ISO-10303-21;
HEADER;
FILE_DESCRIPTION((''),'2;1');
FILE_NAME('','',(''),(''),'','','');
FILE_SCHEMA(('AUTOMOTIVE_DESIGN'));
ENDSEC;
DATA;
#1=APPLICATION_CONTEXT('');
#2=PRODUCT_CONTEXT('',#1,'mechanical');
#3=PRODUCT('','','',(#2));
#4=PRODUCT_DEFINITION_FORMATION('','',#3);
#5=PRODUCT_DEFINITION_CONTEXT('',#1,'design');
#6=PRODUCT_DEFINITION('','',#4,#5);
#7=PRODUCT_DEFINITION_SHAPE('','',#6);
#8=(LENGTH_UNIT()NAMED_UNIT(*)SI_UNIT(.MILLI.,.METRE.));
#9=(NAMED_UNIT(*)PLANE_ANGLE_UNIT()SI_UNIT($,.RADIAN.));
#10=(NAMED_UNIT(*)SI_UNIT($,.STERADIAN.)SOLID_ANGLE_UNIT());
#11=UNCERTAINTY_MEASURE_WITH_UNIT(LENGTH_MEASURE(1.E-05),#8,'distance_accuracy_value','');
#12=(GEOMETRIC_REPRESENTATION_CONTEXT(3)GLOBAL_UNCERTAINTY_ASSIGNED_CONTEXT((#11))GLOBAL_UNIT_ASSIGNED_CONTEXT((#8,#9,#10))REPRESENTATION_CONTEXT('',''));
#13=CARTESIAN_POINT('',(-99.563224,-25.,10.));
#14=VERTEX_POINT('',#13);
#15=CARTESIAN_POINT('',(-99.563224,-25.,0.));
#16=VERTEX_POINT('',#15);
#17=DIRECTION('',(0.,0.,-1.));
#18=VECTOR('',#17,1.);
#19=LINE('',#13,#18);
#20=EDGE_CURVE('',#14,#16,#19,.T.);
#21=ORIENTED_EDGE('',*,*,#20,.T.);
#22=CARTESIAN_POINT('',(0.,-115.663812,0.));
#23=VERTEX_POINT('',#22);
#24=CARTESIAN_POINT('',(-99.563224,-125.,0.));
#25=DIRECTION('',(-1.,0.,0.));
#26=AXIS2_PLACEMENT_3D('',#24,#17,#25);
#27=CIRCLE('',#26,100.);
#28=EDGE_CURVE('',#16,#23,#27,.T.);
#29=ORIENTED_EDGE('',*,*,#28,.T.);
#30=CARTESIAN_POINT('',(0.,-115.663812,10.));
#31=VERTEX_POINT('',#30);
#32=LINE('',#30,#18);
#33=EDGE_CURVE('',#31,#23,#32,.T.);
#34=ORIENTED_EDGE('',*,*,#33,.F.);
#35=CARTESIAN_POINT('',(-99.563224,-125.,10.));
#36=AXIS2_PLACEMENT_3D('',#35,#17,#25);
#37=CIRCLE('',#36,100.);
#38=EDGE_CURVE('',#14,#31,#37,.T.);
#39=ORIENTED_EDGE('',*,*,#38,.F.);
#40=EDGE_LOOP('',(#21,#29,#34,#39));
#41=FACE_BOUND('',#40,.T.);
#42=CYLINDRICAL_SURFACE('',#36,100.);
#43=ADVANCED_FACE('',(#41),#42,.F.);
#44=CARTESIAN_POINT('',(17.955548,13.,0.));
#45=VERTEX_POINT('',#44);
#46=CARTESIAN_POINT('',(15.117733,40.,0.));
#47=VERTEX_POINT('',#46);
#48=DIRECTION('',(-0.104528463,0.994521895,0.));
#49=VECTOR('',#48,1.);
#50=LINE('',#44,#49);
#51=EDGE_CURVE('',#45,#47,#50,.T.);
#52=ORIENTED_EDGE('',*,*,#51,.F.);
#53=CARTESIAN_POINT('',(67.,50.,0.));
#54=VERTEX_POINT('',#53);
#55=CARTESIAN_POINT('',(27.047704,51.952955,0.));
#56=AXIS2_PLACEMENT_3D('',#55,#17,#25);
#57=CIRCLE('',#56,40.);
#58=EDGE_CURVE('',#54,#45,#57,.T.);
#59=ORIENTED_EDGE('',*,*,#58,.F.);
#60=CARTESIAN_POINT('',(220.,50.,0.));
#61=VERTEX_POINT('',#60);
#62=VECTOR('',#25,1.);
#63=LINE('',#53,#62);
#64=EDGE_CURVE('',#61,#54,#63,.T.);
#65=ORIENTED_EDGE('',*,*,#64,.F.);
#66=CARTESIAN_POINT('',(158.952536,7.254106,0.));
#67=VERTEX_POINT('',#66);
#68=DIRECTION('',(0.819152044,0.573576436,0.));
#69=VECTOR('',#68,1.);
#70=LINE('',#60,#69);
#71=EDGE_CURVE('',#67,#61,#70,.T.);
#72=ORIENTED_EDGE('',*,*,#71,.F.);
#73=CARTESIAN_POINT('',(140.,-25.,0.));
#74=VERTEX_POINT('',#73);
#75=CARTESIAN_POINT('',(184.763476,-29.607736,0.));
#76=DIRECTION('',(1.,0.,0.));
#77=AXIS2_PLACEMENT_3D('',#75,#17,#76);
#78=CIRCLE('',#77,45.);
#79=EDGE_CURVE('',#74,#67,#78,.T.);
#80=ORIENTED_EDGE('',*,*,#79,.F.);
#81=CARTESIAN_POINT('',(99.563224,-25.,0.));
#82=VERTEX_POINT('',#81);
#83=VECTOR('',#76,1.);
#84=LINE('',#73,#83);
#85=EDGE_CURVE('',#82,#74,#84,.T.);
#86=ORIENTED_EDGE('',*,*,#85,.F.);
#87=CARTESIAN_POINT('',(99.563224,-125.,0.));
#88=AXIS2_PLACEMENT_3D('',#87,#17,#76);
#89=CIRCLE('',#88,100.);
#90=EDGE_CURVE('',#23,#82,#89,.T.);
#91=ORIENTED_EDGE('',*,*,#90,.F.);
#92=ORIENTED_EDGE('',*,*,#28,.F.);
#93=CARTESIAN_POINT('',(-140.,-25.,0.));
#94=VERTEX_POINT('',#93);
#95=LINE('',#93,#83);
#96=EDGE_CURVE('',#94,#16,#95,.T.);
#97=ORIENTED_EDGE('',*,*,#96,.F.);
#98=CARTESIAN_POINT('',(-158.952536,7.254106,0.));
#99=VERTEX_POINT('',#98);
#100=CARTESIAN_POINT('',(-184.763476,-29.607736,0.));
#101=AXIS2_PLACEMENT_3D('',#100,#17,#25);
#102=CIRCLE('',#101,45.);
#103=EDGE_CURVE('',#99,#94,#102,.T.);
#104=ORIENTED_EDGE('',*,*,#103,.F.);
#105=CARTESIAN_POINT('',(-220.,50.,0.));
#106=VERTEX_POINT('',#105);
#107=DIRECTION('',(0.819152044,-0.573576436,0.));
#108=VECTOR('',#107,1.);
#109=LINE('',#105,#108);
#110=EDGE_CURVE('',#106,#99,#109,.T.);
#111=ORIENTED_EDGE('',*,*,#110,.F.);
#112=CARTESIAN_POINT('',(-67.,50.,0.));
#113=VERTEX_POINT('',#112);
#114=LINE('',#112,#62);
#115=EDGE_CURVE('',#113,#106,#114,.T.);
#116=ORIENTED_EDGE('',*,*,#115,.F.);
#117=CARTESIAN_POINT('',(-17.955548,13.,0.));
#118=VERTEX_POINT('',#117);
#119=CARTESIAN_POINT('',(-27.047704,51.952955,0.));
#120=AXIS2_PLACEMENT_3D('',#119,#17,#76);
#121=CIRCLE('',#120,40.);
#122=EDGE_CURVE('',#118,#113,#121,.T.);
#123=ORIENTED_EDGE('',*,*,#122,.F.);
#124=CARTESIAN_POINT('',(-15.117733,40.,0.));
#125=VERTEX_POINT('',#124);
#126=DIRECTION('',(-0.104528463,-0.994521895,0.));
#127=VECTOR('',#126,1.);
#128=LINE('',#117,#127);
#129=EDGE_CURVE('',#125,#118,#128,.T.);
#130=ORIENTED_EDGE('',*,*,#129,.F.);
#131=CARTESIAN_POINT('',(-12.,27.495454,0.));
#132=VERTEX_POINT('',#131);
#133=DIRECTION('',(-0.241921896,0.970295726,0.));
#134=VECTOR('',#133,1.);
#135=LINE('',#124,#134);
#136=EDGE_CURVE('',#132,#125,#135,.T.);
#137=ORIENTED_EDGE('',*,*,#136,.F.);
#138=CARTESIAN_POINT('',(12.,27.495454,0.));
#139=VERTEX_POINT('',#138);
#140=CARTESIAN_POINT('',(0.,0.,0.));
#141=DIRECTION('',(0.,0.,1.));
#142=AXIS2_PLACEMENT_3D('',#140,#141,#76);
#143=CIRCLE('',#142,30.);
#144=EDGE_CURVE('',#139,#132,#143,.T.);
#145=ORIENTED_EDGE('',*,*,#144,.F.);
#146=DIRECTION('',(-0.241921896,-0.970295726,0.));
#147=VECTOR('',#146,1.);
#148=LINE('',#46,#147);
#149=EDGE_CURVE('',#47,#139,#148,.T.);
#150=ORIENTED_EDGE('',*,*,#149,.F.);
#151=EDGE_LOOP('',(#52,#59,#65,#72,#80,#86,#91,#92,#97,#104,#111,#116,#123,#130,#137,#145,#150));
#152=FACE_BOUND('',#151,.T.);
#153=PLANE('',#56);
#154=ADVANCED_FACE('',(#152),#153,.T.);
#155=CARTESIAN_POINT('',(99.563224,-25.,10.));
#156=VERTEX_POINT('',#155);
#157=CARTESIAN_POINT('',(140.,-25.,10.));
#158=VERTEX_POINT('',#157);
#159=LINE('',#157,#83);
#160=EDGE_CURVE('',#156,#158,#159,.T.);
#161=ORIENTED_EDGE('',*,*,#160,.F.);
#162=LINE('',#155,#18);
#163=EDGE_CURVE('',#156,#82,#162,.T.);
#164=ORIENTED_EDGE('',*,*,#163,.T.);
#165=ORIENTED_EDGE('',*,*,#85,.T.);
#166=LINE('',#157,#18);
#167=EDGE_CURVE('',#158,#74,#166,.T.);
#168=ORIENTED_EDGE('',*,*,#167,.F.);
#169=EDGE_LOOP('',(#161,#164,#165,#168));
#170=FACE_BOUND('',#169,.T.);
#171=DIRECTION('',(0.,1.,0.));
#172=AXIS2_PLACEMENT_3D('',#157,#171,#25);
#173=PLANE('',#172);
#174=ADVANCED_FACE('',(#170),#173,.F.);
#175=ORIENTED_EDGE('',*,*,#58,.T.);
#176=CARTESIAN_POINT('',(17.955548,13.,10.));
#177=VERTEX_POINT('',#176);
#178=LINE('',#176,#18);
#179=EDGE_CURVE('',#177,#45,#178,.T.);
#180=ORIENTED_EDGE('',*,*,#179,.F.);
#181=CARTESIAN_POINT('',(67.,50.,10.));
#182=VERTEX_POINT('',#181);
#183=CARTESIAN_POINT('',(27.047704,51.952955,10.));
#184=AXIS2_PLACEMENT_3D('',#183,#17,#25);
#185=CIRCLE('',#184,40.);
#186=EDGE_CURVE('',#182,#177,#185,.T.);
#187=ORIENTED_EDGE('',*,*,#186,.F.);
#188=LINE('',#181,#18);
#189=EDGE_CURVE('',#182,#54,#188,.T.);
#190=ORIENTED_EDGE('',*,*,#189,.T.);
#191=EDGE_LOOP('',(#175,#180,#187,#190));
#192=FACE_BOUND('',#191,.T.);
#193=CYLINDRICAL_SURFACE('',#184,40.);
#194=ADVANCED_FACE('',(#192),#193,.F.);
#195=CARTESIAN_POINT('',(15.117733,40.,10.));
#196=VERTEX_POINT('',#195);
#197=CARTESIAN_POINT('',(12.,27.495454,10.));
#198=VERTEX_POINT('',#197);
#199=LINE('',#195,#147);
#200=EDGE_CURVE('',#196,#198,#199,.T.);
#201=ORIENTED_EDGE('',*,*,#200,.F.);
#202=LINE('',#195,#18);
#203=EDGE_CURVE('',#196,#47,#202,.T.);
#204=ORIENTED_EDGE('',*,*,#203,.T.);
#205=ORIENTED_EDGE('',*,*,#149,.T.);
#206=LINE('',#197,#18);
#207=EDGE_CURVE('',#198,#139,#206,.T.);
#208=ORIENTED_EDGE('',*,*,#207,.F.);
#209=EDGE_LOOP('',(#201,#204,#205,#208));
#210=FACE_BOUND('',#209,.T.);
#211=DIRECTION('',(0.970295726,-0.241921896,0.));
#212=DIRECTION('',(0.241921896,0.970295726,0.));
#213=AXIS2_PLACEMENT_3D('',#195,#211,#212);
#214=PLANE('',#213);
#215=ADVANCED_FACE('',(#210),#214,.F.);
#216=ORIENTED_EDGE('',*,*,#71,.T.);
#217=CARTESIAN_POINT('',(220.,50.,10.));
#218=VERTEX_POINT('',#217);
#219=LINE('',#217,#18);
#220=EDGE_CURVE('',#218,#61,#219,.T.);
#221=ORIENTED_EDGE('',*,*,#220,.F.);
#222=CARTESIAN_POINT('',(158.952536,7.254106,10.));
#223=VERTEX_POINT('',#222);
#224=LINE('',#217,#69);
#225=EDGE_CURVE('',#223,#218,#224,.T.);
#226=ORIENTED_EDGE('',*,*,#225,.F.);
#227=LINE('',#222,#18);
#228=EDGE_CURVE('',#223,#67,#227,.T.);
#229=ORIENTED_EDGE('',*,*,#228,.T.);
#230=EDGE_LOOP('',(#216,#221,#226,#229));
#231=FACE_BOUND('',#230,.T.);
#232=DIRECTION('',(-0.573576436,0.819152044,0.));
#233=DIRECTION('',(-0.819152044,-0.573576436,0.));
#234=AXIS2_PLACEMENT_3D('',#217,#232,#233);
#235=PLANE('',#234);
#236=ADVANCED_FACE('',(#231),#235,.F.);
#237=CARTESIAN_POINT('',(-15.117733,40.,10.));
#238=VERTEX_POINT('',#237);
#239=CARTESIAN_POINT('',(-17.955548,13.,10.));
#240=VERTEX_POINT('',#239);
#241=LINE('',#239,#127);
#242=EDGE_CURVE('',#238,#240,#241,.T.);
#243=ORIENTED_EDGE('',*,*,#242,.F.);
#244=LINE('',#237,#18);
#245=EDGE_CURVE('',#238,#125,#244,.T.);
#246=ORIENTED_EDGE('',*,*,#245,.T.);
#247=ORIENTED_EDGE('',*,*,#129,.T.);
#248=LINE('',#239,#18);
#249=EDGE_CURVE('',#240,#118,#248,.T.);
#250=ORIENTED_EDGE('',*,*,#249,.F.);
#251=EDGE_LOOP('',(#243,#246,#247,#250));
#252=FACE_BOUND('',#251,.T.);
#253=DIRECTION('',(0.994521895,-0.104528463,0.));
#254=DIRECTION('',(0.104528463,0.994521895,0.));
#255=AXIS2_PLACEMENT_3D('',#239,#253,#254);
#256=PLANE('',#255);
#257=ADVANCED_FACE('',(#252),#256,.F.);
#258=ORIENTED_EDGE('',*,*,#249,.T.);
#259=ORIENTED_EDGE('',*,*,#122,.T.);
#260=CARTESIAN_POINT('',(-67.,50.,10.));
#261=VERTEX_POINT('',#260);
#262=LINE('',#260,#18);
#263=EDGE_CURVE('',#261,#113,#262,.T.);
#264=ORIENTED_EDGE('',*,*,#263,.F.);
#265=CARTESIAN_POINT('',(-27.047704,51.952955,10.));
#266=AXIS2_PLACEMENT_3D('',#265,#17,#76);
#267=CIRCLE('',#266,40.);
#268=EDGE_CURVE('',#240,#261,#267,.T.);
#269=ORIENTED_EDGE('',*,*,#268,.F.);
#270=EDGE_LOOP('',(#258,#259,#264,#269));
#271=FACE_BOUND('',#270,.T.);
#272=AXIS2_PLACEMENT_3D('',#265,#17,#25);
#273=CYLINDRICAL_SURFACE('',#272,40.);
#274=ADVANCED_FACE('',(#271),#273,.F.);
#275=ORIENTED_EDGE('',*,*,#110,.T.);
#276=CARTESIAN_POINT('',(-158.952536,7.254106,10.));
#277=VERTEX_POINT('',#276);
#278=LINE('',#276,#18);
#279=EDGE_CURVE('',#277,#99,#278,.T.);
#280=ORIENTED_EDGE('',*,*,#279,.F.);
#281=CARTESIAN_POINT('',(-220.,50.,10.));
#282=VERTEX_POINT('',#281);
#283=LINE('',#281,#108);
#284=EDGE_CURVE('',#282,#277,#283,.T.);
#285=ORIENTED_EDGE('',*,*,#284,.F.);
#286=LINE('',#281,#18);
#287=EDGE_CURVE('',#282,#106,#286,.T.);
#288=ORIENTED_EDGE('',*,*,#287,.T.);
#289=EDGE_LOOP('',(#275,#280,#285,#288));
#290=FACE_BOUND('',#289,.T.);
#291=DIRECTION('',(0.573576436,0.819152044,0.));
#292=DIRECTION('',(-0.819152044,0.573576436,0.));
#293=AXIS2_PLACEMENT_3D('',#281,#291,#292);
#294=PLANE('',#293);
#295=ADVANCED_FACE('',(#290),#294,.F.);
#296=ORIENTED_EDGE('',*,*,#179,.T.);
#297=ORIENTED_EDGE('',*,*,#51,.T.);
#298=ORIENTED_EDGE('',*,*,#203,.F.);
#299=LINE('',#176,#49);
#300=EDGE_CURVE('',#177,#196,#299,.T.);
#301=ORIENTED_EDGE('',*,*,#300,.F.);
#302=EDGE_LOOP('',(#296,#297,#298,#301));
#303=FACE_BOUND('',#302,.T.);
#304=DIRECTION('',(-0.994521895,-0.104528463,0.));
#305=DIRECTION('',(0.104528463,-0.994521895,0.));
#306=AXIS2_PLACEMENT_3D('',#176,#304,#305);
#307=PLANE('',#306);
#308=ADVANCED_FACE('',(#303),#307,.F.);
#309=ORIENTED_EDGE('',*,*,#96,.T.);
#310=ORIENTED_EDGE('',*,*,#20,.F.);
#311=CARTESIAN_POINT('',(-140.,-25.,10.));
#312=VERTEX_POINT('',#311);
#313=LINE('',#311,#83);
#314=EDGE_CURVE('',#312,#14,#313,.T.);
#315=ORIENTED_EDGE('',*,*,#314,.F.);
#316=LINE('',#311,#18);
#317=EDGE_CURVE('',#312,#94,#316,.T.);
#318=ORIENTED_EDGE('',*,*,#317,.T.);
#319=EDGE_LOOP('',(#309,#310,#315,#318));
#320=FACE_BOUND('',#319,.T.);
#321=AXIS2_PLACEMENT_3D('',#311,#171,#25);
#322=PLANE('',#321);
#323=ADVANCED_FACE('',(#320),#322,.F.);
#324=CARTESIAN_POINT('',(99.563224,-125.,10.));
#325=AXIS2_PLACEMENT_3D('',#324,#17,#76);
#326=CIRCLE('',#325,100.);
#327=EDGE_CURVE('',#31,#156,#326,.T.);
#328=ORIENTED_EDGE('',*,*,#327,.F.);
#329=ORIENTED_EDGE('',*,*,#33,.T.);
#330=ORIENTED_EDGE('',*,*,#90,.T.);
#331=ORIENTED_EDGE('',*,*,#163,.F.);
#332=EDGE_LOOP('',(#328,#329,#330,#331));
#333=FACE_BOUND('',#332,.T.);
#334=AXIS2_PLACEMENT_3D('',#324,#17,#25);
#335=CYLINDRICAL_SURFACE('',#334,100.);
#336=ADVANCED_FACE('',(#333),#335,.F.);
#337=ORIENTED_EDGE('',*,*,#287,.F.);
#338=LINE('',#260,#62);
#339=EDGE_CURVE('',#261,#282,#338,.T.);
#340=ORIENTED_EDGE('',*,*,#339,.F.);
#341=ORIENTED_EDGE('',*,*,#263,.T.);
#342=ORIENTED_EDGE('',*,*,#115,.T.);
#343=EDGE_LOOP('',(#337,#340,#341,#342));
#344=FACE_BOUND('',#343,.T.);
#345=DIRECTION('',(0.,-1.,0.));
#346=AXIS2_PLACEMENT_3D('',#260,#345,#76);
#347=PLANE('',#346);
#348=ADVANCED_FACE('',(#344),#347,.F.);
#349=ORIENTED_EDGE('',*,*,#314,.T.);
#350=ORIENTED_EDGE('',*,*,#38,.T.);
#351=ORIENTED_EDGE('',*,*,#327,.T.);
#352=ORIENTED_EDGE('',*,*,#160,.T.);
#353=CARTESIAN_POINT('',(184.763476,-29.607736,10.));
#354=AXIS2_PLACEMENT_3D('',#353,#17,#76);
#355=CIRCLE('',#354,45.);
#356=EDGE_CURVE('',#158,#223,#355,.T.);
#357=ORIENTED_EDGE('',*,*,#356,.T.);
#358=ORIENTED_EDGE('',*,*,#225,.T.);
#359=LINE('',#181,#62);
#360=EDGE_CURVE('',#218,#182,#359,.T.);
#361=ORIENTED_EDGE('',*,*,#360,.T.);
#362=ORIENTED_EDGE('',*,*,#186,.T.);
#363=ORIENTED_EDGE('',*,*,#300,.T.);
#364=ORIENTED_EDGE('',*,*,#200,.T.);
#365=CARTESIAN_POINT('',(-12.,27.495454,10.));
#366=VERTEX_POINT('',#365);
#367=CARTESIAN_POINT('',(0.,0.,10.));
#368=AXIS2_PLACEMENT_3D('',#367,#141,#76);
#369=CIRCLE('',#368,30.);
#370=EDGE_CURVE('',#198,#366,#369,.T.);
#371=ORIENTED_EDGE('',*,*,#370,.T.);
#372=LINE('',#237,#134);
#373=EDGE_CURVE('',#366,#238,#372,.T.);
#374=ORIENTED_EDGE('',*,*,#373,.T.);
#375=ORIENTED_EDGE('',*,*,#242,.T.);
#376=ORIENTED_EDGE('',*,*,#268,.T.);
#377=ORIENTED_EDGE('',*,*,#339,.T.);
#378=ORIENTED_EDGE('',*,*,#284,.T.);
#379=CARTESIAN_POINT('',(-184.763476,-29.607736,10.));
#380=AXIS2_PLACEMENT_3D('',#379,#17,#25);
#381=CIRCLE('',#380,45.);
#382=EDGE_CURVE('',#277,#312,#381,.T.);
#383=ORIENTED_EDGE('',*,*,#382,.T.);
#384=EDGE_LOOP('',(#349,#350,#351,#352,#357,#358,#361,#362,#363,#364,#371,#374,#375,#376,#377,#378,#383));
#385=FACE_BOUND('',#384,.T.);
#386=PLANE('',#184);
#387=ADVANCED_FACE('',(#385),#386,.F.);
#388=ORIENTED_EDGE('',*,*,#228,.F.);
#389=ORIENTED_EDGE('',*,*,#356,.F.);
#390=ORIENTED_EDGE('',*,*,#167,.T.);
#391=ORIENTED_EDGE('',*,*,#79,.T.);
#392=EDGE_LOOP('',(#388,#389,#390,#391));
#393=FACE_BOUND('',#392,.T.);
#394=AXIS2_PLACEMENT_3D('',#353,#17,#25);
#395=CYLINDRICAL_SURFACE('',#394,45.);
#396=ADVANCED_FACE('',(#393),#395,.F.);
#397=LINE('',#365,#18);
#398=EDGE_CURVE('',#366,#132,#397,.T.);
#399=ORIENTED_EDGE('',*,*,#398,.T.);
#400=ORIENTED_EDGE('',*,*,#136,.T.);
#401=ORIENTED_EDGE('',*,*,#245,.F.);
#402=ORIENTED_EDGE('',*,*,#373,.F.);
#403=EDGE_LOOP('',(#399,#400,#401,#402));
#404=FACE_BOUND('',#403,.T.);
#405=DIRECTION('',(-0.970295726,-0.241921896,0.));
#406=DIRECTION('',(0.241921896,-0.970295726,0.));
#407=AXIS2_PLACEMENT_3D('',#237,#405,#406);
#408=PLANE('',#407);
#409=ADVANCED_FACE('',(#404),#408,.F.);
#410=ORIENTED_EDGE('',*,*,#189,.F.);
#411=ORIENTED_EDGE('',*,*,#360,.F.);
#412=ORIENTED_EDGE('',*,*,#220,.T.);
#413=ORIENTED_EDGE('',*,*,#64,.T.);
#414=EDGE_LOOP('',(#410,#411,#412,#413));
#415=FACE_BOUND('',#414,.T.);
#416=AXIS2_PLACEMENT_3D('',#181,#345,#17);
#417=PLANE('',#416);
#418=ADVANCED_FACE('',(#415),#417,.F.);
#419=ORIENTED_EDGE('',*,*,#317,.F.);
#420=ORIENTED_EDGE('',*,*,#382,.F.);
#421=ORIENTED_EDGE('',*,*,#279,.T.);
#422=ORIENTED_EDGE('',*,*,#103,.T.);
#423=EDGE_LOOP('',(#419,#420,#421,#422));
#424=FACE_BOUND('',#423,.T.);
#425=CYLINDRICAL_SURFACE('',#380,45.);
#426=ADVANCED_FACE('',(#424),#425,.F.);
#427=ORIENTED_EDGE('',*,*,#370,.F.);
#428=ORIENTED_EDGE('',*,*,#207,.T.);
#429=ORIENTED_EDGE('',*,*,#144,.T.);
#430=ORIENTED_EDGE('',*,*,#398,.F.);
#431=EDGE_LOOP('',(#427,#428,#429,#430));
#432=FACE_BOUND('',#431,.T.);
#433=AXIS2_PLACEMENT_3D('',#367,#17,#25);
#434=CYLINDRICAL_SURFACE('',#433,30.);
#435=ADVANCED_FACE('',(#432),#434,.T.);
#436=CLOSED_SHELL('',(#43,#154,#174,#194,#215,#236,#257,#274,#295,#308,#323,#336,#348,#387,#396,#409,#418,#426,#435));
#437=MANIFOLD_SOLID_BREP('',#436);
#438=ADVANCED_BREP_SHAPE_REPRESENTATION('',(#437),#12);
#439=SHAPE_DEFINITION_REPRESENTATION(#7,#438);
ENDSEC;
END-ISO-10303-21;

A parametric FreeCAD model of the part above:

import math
import FreeCAD as App
import Part
import Sketcher
Q = App.Units.Quantity

doc = App.newDocument("Part")
params = doc.addObject("Spreadsheet::Sheet", "Params")
for row, (alias, value) in enumerate([
    ("sketch1_radius", "40 mm"),
    ("sketch1_radius2", "30 mm"),
    ("sketch1_radius3", "45 mm"),
    ("sketch1_radius4", "100 mm"),
    ("sketch1_width", "153 mm"),
    ("pad1_length", "10 mm"),
], start=1):
    params.set(f"A{row}", alias)
    params.set(f"B{row}", "=" + value)
    params.setAlias(f"B{row}", alias)

body = doc.addObject("PartDesign::Body", "Body")

# Sketch on XY plane
sketch1 = body.newObject("Sketcher::SketchObject", "Sketch")
sketch1.AttachmentSupport = (doc.getObject("XY_Plane"), [""])
sketch1.MapMode = "FlatFace"
sketch1.addGeometry(Part.LineSegment(App.Vector(220, 50, 0), App.Vector(67, 50, 0)), False)
sketch1.addGeometry(Part.ArcOfCircle(Part.Circle(App.Vector(27, 52, 0), App.Vector(0, 0, 1), 40), math.radians(-103), math.radians(-3)), False)
sketch1.addGeometry(Part.LineSegment(App.Vector(18, 13, 0), App.Vector(15, 40, 0)), False)
sketch1.addGeometry(Part.LineSegment(App.Vector(15, 40, 0), App.Vector(12, 27, 0)), False)
sketch1.addGeometry(Part.ArcOfCircle(Part.Circle(App.Vector(0, 0, 0), App.Vector(0, 0, 1), 30), math.radians(66), math.radians(114)), False)
sketch1.addGeometry(Part.LineSegment(App.Vector(-12, 27, 0), App.Vector(-15, 40, 0)), False)
sketch1.addGeometry(Part.LineSegment(App.Vector(-15, 40, 0), App.Vector(-18, 13, 0)), False)
sketch1.addGeometry(Part.ArcOfCircle(Part.Circle(App.Vector(-27, 52, 0), App.Vector(0, 0, 1), 40), math.radians(-177), math.radians(-77)), False)
sketch1.addGeometry(Part.LineSegment(App.Vector(-67, 50, 0), App.Vector(-220, 50, 0)), False)
sketch1.addGeometry(Part.LineSegment(App.Vector(-220, 50, 0), App.Vector(-159, 7, 0)), False)
sketch1.addGeometry(Part.ArcOfCircle(Part.Circle(App.Vector(-185, -30, 0), App.Vector(0, 0, 1), 45), math.radians(6), math.radians(55)), False)
sketch1.addGeometry(Part.LineSegment(App.Vector(-140, -25, 0), App.Vector(-100, -25, 0)), False)
sketch1.addGeometry(Part.ArcOfCircle(Part.Circle(App.Vector(-100, -125, 0), App.Vector(0, 0, 1), 100), math.radians(5), math.radians(90)), False)
sketch1.addGeometry(Part.ArcOfCircle(Part.Circle(App.Vector(100, -125, 0), App.Vector(0, 0, 1), 100), math.radians(90), math.radians(175)), False)
sketch1.addGeometry(Part.LineSegment(App.Vector(100, -25, 0), App.Vector(140, -25, 0)), False)
sketch1.addGeometry(Part.ArcOfCircle(Part.Circle(App.Vector(185, -30, 0), App.Vector(0, 0, 1), 45), math.radians(125), math.radians(174)), False)
sketch1.addGeometry(Part.LineSegment(App.Vector(159, 7, 0), App.Vector(220, 50, 0)), False)
sketch1.addConstraint(Sketcher.Constraint("Coincident", 0, 2, 1, 2))
sketch1.addConstraint(Sketcher.Constraint("Coincident", 1, 1, 2, 1))
sketch1.addConstraint(Sketcher.Constraint("Coincident", 2, 2, 3, 1))
sketch1.addConstraint(Sketcher.Constraint("Coincident", 3, 2, 4, 1))
sketch1.addConstraint(Sketcher.Constraint("Coincident", 4, 2, 5, 1))
sketch1.addConstraint(Sketcher.Constraint("Coincident", 5, 2, 6, 1))
sketch1.addConstraint(Sketcher.Constraint("Coincident", 6, 2, 7, 2))
sketch1.addConstraint(Sketcher.Constraint("Coincident", 7, 1, 8, 1))
sketch1.addConstraint(Sketcher.Constraint("Coincident", 8, 2, 9, 1))
sketch1.addConstraint(Sketcher.Constraint("Tangent", 9, 2, 10, 2))
sketch1.addConstraint(Sketcher.Constraint("Coincident", 10, 1, 11, 1))
sketch1.addConstraint(Sketcher.Constraint("Tangent", 11, 2, 12, 2))
sketch1.addConstraint(Sketcher.Constraint("Coincident", 12, 1, 13, 2))
sketch1.addConstraint(Sketcher.Constraint("Tangent", 13, 1, 14, 1))
sketch1.addConstraint(Sketcher.Constraint("Coincident", 14, 2, 15, 2))
sketch1.addConstraint(Sketcher.Constraint("Tangent", 15, 1, 16, 1))
sketch1.addConstraint(Sketcher.Constraint("Coincident", 16, 2, 0, 1))
sketch1.addConstraint(Sketcher.Constraint("Horizontal", 0))
sketch1.addConstraint(Sketcher.Constraint("Horizontal", 8))
sketch1.addConstraint(Sketcher.Constraint("Horizontal", 11))
sketch1.addConstraint(Sketcher.Constraint("Horizontal", 14))
sketch1.addConstraint(Sketcher.Constraint("Coincident", 4, 3, -1, 1))
sketch1.addConstraint(Sketcher.Constraint("Equal", 1, 7))
sketch1.addConstraint(Sketcher.Constraint("Equal", 12, 13))
sketch1.addConstraint(Sketcher.Constraint("Equal", 10, 15))
sketch1.addConstraint(Sketcher.Constraint("Symmetric", 1, 3, 7, 3, -2))
sketch1.addConstraint(Sketcher.Constraint("Symmetric", 12, 3, 13, 3, -2))
sketch1.addConstraint(Sketcher.Constraint("Symmetric", 10, 3, 15, 3, -2))
sketch1.addConstraint(Sketcher.Constraint("Symmetric", 2, 2, 5, 2, -2))
sketch1.addConstraint(Sketcher.Constraint("Symmetric", 8, 2, 16, 2, -2))
sketch1.addConstraint(Sketcher.Constraint("Horizontal", 3, 2, 4, 2))
sketch1.addConstraint(Sketcher.Constraint("Horizontal", 1, 1, 6, 2))
sketch1.addConstraint(Sketcher.Constraint("Radius", 1, Q("40 mm")))
sketch1.addConstraint(Sketcher.Constraint("Radius", 4, Q("30 mm")))
sketch1.addConstraint(Sketcher.Constraint("Radius", 10, Q("45 mm")))
sketch1.addConstraint(Sketcher.Constraint("Radius", 12, Q("100 mm")))
sketch1.addConstraint(Sketcher.Constraint("DistanceX", 0, 2, 0, 1, Q("153 mm")))
sketch1.addConstraint(Sketcher.Constraint("Angle", 2, Q("96 deg")))
sketch1.addConstraint(Sketcher.Constraint("Angle", 3, Q("-104 deg")))
sketch1.addConstraint(Sketcher.Constraint("Angle", 9, Q("-35 deg")))
sketch1.addConstraint(Sketcher.Constraint("DistanceY", 12, 3, -1, 1, Q("125 mm")))
sketch1.addConstraint(Sketcher.Constraint("DistanceX", -1, 1, 0, 2, Q("67 mm")))
sketch1.addConstraint(Sketcher.Constraint("DistanceY", -1, 1, 0, 2, Q("50 mm")))
sketch1.addConstraint(Sketcher.Constraint("DistanceY", -1, 1, 1, 1, Q("13 mm")))
sketch1.addConstraint(Sketcher.Constraint("DistanceY", -1, 1, 2, 2, Q("40 mm")))
sketch1.addConstraint(Sketcher.Constraint("DistanceX", -1, 1, 3, 2, Q("12 mm")))
sketch1.addConstraint(Sketcher.Constraint("DistanceX", 10, 1, -1, 1, Q("140 mm")))
sketch1.addConstraint(Sketcher.Constraint("DistanceX", 10, 3, 13, 3, Q("284.3267 mm")))
sketch1.setExpression("Constraints[32]", "Params.sketch1_radius")
sketch1.setExpression("Constraints[33]", "Params.sketch1_radius2")
sketch1.setExpression("Constraints[34]", "Params.sketch1_radius3")
sketch1.setExpression("Constraints[35]", "Params.sketch1_radius4")
sketch1.setExpression("Constraints[36]", "Params.sketch1_width")
pad1 = body.newObject("PartDesign::Pad", "Pad")
pad1.Profile = sketch1
pad1.setExpression("Length", "Params.pad1_length")

doc.recompute()
